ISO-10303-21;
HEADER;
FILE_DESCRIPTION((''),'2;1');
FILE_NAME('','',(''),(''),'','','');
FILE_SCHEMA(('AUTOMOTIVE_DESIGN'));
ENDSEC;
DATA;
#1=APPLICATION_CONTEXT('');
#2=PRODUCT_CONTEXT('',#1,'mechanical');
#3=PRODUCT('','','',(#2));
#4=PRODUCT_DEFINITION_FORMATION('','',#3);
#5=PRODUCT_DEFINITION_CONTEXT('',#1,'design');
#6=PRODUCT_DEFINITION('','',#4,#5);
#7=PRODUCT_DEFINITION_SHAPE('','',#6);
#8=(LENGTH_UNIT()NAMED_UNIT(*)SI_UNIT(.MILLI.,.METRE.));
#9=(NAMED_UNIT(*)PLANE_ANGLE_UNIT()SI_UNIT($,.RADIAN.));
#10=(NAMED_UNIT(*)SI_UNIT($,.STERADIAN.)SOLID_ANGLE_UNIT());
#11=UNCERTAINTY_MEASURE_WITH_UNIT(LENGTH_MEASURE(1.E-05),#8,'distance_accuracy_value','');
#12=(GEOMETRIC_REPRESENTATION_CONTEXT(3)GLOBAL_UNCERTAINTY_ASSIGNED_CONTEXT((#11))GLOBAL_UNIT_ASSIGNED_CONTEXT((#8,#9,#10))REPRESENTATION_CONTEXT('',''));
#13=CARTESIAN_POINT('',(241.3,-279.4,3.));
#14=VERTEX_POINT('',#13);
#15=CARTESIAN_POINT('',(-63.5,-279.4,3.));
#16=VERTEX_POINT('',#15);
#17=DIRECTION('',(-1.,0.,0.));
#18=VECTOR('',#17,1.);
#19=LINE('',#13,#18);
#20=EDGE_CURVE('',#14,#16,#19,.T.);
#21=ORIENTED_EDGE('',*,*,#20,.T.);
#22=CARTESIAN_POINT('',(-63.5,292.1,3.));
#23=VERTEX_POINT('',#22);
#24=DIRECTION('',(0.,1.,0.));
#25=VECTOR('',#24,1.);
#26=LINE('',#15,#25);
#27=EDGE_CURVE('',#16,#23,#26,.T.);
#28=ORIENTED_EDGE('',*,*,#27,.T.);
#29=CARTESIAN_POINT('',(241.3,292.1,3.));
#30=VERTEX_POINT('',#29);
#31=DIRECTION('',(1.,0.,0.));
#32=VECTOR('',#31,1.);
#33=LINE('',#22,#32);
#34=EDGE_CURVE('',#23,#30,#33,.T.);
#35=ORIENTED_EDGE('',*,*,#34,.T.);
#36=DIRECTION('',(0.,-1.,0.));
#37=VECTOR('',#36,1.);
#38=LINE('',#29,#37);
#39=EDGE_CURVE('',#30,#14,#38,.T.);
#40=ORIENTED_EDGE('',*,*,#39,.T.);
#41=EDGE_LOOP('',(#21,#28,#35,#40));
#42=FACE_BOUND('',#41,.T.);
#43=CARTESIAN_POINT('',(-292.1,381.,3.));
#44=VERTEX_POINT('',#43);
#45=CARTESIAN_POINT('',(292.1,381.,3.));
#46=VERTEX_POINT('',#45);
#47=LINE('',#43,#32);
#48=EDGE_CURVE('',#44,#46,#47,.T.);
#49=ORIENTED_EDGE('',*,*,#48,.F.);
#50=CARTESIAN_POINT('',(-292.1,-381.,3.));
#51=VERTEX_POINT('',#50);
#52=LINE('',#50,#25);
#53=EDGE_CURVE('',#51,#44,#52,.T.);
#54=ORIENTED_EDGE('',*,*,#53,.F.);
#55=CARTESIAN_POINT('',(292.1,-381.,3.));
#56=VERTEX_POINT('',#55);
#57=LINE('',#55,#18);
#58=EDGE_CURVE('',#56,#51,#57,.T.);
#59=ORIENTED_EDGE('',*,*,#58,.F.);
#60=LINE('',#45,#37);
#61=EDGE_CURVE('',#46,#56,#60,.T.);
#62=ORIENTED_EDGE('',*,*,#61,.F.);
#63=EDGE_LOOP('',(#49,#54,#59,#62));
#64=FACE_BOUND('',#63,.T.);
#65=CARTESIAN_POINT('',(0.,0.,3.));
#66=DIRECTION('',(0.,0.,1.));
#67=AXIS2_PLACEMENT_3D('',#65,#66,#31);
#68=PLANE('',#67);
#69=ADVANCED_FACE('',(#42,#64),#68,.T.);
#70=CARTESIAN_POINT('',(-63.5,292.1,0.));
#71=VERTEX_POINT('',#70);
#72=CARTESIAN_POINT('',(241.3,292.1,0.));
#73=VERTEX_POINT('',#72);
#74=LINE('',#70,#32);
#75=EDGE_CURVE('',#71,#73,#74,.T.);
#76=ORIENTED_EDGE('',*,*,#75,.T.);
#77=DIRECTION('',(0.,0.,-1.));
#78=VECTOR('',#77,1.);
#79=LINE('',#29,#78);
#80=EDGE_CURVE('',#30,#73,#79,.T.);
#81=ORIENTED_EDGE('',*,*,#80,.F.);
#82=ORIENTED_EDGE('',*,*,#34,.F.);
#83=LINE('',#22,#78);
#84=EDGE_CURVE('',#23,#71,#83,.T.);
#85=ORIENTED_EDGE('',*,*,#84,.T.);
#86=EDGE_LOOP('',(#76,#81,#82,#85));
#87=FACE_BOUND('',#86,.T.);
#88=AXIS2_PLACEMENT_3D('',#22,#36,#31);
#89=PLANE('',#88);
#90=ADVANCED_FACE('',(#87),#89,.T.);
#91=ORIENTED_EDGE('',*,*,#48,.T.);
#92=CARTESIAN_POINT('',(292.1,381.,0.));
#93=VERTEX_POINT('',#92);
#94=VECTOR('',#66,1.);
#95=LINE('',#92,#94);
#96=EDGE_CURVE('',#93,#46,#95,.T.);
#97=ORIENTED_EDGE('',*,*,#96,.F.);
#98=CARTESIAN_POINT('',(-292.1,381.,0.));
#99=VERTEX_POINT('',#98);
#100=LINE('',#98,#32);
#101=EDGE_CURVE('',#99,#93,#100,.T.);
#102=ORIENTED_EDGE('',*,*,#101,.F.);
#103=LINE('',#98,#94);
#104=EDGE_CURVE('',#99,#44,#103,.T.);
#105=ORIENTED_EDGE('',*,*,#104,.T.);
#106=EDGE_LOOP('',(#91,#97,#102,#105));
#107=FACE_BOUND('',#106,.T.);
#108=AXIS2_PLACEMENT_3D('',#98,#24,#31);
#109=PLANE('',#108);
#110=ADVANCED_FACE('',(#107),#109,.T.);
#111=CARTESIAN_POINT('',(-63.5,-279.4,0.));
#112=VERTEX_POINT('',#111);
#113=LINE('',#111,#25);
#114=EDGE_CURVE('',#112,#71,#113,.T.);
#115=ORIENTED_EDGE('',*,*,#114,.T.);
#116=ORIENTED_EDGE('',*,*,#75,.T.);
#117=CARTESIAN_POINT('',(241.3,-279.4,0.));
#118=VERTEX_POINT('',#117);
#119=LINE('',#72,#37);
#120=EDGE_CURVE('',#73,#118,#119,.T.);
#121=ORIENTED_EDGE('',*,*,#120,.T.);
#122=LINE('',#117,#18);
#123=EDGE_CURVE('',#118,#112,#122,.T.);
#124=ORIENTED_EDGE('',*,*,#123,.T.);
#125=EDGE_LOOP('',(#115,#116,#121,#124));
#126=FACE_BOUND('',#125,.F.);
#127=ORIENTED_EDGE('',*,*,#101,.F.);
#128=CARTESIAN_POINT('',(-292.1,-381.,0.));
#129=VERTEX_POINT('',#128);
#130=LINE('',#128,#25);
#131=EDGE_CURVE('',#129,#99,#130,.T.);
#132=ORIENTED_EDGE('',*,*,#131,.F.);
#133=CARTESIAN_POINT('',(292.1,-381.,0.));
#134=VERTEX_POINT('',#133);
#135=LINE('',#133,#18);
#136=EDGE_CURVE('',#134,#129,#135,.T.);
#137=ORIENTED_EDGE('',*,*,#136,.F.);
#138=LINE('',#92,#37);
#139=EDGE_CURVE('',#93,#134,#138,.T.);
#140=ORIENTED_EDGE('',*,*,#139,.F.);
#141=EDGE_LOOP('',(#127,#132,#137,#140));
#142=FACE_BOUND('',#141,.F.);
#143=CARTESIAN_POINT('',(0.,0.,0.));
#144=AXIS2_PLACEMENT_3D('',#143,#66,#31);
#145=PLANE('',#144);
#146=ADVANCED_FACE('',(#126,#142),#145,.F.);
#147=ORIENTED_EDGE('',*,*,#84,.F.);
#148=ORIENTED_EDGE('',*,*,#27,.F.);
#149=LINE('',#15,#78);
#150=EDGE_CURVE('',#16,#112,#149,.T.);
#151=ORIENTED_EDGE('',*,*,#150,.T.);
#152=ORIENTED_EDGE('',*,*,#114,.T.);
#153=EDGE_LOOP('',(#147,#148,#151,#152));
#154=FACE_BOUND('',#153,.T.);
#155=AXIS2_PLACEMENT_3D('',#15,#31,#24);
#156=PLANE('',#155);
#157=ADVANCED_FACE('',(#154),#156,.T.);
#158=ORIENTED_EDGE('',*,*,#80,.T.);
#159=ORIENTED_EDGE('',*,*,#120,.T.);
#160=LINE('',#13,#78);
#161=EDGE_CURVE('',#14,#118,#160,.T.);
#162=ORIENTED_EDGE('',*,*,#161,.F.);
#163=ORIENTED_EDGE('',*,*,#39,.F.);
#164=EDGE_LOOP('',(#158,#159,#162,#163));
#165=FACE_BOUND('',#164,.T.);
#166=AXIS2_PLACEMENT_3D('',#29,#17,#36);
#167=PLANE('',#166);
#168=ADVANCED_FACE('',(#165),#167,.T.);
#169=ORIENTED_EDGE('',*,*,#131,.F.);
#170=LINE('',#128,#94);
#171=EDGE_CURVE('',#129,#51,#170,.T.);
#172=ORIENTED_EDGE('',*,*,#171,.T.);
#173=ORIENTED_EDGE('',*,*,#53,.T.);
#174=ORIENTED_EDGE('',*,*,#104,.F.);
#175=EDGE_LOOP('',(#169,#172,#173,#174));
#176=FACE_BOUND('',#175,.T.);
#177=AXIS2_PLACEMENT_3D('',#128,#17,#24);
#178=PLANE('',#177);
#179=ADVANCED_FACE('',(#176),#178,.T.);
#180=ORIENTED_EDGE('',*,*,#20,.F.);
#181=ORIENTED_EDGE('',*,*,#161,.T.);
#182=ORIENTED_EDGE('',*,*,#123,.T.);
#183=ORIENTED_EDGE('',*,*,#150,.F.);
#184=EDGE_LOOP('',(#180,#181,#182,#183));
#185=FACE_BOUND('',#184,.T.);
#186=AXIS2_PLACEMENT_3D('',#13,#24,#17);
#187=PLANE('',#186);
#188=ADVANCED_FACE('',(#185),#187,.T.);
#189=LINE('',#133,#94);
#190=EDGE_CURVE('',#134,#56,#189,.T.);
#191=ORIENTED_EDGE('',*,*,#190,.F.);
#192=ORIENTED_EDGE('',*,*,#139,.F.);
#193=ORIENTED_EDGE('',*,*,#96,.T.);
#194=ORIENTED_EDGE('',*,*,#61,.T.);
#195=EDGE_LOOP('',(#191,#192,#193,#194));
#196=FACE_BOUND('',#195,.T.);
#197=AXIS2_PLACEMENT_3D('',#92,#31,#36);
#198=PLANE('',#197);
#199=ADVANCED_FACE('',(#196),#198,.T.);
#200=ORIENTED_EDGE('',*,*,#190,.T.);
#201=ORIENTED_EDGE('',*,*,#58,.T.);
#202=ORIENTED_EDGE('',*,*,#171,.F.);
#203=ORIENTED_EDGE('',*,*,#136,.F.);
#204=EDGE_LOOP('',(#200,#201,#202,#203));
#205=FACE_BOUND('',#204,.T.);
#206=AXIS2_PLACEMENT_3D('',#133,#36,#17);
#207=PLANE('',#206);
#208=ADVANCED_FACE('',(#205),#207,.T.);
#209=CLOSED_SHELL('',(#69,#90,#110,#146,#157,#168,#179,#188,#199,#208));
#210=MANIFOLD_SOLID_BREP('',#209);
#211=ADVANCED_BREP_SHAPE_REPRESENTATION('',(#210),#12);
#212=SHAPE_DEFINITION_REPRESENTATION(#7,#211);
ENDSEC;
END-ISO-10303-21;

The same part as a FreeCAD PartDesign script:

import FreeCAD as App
import Part
import Sketcher
Q = App.Units.Quantity


def add_polygon(sketch, points):
    """Adds a closed chain of lines whose ends are joined by coincident constraints."""
    first, n = sketch.GeometryCount, len(points)
    for a, b in zip(points, points[1:] + points[:1]):
        sketch.addGeometry(Part.LineSegment(App.Vector(*a, 0), App.Vector(*b, 0)), False)
    for i in range(n):
        sketch.addConstraint(Sketcher.Constraint("Coincident", first + i, 2, first + (i + 1) % n, 1))

doc = App.newDocument("Part")
body = doc.addObject("PartDesign::Body", "Body")

# Sketch on XY plane
sketch1 = body.newObject("Sketcher::SketchObject", "Sketch")
sketch1.AttachmentSupport = (doc.getObject("XY_Plane"), [""])
sketch1.MapMode = "FlatFace"
add_polygon(sketch1, [(292.1, 381), (-292.1, 381), (-292.1, -381), (292.1, -381)])  # lines 0-3
sketch1.addConstraint([
    Sketcher.Constraint("Horizontal", 0),
    Sketcher.Constraint("Vertical", 1),
    Sketcher.Constraint("Horizontal", 2),
    Sketcher.Constraint("Vertical", 3),
    Sketcher.Constraint("Symmetric", 0, 2, 2, 2, -1, 1),
    Sketcher.Constraint("DistanceX", 0, 2, 0, 1, Q("23 in")),
    Sketcher.Constraint("DistanceY", 1, 2, 1, 1, Q("30 in")),
])
pad1 = body.newObject("PartDesign::Pad", "Pad")
pad1.Profile = sketch1
pad1.Length = Q("0.1181102 in")

# Sketch on XY plane
sketch2 = body.newObject("Sketcher::SketchObject", "Sketch001")
sketch2.AttachmentSupport = (doc.getObject("XY_Plane"), [""])
sketch2.MapMode = "FlatFace"
sketch2.AttachmentOffset = App.Placement(App.Vector(0, 0, 0.1181102 * 25.4), App.Rotation())
add_polygon(sketch2, [(241.3, 292.1), (-63.5, 292.1), (-63.5, -279.4), (241.3, -279.4)])  # lines 0-3
sketch2.addConstraint([
    Sketcher.Constraint("Horizontal", 0),
    Sketcher.Constraint("Vertical", 1),
    Sketcher.Constraint("Horizontal", 2),
    Sketcher.Constraint("Vertical", 3),
    Sketcher.Constraint("DistanceX", 0, 2, 0, 1, Q("12 in")),
    Sketcher.Constraint("DistanceY", 1, 2, 1, 1, Q("22.5 in")),
    Sketcher.Constraint("DistanceY", 1, 2, -1, 1, Q("11 in")),
    Sketcher.Constraint("DistanceX", 0, 2, -1, 1, Q("2.5 in")),
])
pocket1 = body.newObject("PartDesign::Pocket", "Pocket")
pocket1.Profile = sketch2
pocket1.Length = Q("0.1181102 in")

doc.recompute()
